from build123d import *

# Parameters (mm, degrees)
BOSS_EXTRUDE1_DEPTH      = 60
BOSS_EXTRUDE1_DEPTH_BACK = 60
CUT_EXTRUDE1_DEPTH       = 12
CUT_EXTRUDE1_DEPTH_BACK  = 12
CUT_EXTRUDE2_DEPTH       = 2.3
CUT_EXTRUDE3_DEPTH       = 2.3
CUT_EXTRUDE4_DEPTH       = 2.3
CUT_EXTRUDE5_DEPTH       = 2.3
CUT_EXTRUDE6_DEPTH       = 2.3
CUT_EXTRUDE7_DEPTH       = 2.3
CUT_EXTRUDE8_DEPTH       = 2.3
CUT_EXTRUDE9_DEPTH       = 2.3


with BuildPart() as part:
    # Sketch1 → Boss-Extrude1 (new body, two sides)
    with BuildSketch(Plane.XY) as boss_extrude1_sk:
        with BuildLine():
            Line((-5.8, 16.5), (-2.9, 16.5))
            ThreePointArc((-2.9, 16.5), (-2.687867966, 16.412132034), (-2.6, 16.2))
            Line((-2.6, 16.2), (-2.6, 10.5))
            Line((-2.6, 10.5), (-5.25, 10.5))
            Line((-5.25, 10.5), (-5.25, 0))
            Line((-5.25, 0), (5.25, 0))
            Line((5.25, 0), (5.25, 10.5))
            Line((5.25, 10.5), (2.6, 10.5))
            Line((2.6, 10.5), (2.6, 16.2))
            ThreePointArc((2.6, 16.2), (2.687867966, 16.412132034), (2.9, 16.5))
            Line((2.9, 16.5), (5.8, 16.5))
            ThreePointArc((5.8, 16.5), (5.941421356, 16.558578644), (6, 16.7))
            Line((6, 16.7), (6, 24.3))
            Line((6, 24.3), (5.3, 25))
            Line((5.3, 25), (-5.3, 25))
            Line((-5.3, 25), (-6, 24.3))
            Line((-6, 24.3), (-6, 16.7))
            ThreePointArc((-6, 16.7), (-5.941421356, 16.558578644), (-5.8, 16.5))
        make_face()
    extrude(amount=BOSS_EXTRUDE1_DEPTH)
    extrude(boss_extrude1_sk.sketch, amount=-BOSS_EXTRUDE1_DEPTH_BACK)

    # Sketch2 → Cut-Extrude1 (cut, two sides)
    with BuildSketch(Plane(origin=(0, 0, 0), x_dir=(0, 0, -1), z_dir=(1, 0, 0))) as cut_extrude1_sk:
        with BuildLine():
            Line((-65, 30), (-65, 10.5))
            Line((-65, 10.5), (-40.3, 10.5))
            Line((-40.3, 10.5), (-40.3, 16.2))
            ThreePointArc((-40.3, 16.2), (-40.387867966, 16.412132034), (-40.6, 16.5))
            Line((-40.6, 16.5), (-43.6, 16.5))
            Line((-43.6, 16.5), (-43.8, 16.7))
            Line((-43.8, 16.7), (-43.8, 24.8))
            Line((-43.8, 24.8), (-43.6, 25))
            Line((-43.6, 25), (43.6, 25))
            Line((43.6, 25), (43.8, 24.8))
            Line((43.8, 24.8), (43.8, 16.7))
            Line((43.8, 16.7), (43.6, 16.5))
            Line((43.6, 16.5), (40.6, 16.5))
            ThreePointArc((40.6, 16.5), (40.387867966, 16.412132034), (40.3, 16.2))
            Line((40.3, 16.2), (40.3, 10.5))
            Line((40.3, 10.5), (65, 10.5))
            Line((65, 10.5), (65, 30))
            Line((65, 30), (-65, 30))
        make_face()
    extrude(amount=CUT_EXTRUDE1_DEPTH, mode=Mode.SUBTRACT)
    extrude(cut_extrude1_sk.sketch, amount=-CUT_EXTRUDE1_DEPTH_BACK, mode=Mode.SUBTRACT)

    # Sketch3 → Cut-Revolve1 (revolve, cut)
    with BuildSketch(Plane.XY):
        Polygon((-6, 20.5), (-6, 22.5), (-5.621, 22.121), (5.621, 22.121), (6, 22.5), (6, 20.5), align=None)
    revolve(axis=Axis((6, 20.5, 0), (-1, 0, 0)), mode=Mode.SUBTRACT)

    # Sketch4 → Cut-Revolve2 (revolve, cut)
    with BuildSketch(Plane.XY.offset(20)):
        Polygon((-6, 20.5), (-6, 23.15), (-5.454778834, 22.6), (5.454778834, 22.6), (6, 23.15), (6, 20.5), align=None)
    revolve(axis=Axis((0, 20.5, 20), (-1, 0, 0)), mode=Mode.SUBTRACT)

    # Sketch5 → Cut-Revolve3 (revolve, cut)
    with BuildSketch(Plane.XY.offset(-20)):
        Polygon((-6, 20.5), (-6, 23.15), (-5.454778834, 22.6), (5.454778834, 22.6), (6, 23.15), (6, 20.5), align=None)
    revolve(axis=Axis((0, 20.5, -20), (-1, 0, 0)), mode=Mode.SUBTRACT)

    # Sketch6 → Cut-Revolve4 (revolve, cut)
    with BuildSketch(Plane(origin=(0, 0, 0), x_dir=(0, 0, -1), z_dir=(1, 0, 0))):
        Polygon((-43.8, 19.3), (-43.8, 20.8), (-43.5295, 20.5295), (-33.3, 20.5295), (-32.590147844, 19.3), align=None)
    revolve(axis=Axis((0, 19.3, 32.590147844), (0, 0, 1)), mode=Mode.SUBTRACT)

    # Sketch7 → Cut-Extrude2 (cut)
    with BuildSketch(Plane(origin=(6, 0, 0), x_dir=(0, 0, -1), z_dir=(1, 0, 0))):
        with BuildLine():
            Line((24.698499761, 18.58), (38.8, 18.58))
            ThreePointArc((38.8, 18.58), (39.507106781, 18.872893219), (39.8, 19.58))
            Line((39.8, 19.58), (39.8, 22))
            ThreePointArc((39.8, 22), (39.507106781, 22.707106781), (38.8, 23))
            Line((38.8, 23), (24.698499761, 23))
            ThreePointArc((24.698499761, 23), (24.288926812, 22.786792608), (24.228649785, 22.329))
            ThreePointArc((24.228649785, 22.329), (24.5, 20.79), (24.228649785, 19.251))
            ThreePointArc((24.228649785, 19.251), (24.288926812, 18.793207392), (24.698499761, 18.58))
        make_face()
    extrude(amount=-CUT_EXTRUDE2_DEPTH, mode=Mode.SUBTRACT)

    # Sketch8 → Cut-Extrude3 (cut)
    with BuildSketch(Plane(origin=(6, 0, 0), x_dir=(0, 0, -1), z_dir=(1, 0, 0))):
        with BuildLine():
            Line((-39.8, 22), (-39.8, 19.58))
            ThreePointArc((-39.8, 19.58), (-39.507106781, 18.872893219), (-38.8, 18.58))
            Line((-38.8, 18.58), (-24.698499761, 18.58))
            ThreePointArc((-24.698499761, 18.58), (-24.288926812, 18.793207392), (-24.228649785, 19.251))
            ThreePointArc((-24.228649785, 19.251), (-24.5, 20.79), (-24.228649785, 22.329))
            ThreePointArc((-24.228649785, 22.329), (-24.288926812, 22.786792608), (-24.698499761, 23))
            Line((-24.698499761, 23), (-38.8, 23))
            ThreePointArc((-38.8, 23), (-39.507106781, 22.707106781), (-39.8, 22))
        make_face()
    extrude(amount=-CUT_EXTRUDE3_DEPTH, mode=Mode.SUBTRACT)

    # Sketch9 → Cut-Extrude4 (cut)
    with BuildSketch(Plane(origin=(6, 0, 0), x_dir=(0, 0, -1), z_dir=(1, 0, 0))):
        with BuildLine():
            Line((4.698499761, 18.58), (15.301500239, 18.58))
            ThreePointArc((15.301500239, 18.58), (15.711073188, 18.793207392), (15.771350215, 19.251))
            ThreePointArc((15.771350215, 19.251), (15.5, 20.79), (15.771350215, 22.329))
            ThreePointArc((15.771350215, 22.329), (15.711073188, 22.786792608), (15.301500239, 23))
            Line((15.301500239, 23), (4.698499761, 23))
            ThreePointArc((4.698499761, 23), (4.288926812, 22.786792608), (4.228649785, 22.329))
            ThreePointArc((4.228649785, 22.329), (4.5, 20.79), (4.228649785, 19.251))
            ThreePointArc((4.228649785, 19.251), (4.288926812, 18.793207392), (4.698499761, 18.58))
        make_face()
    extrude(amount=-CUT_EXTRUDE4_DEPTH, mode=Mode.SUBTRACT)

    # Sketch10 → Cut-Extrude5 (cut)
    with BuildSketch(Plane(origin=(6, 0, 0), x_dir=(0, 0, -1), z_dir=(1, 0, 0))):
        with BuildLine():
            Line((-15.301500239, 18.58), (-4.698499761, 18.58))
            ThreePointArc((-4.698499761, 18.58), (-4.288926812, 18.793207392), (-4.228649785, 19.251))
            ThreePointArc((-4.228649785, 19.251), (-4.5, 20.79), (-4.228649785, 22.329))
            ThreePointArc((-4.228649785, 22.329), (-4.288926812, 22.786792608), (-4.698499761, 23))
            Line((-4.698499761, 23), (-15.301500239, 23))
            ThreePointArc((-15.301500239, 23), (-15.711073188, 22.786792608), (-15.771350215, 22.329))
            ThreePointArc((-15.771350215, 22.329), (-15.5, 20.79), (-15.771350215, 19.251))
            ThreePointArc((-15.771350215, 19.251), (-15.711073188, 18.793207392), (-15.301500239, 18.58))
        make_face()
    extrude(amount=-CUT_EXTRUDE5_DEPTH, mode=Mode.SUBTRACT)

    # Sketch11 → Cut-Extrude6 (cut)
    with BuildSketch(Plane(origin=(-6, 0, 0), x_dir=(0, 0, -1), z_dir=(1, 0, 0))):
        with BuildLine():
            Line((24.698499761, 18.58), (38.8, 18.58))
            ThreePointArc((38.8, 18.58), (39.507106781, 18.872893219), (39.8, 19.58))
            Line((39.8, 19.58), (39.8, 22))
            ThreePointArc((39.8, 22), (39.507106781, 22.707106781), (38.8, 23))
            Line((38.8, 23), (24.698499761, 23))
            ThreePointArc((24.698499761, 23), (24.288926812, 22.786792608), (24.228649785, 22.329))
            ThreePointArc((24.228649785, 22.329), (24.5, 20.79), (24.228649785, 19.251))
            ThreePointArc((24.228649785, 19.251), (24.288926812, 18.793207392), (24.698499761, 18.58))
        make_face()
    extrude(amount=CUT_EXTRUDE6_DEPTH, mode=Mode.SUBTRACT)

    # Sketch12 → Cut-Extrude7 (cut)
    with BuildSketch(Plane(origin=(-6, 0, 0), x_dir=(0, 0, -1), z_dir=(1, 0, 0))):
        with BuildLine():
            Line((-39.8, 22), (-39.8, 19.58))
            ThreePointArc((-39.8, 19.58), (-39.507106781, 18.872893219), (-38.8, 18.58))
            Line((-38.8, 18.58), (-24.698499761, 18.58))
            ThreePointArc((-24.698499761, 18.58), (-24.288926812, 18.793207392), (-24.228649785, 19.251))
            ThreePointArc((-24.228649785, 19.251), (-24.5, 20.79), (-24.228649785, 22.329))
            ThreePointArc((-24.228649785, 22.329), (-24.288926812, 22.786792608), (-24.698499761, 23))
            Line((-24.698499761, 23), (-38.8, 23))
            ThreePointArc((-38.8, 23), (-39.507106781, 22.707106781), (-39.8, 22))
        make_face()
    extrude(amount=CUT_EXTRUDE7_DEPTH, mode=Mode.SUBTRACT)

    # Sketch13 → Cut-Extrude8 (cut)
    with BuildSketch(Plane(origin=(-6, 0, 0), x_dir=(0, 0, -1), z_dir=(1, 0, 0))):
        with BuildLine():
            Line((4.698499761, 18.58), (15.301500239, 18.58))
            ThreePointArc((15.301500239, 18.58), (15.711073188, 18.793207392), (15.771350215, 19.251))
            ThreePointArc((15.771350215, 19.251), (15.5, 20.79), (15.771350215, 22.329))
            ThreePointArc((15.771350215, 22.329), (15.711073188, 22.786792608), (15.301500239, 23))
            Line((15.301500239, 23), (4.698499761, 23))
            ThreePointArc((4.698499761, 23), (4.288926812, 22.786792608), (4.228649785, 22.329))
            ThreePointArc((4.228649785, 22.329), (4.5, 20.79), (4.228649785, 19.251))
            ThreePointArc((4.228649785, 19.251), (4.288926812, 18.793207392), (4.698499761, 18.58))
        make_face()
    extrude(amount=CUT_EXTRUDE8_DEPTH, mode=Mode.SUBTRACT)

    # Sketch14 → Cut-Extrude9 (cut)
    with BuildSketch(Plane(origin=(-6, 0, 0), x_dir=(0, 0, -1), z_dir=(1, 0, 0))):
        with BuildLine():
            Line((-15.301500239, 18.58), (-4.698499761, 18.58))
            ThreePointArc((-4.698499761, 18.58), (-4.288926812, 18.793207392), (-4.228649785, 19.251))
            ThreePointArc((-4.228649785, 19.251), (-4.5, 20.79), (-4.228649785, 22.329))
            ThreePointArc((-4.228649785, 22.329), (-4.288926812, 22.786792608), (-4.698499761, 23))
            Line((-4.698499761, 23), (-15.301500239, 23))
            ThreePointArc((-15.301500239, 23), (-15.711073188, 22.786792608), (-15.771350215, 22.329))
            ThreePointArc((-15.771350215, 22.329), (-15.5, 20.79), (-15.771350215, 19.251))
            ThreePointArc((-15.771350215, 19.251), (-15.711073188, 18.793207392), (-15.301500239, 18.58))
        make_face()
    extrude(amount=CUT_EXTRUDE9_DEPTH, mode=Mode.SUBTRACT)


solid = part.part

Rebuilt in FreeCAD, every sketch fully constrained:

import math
import FreeCAD as App
import Part
import Sketcher
from FreeCAD import Vector
Q = App.Units.Quantity


def add_polygon(sketch, points):
    """Adds a closed chain of lines whose ends are joined by coincident constraints."""
    first, n = sketch.GeometryCount, len(points)
    for a, b in zip(points, points[1:] + points[:1]):
        sketch.addGeometry(Part.LineSegment(App.Vector(*a, 0), App.Vector(*b, 0)), False)
    for i in range(n):
        sketch.addConstraint(Sketcher.Constraint("Coincident", first + i, 2, first + (i + 1) % n, 1))

doc = App.newDocument("Part")
body = doc.addObject("PartDesign::Body", "Body")

sketch1 = body.newObject("Sketcher::SketchObject", "Sketch")
sketch1.AttachmentSupport = (doc.getObject("XY_Plane"), [""])
sketch1.MapMode = "FlatFace"
sketch1.addGeometry(Part.LineSegment(Vector(-5.8, 16.5, 0), Vector(-2.9, 16.5, 0)), False)
sketch1.addGeometry(Part.ArcOfCircle(Part.Circle(Vector(-2.9, 16.2, 0), Vector(0, 0, 1), 0.3), math.radians(0), math.radians(90)), False)
sketch1.addGeometry(Part.LineSegment(Vector(-2.6, 16.2, 0), Vector(-2.6, 10.5, 0)), False)
sketch1.addGeometry(Part.LineSegment(Vector(-2.6, 10.5, 0), Vector(-5.25, 10.5, 0)), False)
sketch1.addGeometry(Part.LineSegment(Vector(-5.25, 10.5, 0), Vector(-5.25, 0, 0)), False)
sketch1.addGeometry(Part.LineSegment(Vector(-5.25, 0, 0), Vector(5.25, 0, 0)), False)
sketch1.addGeometry(Part.LineSegment(Vector(5.25, 0, 0), Vector(5.25, 10.5, 0)), False)
sketch1.addGeometry(Part.LineSegment(Vector(5.25, 10.5, 0), Vector(2.6, 10.5, 0)), False)
sketch1.addGeometry(Part.LineSegment(Vector(2.6, 10.5, 0), Vector(2.6, 16.2, 0)), False)
sketch1.addGeometry(Part.ArcOfCircle(Part.Circle(Vector(2.9, 16.2, 0), Vector(0, 0, 1), 0.3), math.radians(90), math.radians(180)), False)
sketch1.addGeometry(Part.LineSegment(Vector(2.9, 16.5, 0), Vector(5.8, 16.5, 0)), False)
sketch1.addGeometry(Part.ArcOfCircle(Part.Circle(Vector(5.8, 16.7, 0), Vector(0, 0, 1), 0.2), math.radians(-90), math.radians(0)), False)
sketch1.addGeometry(Part.LineSegment(Vector(6, 16.7, 0), Vector(6, 24.3, 0)), False)
sketch1.addGeometry(Part.LineSegment(Vector(6, 24.3, 0), Vector(5.3, 25, 0)), False)
sketch1.addGeometry(Part.LineSegment(Vector(5.3, 25, 0), Vector(-5.3, 25, 0)), False)
sketch1.addGeometry(Part.LineSegment(Vector(-5.3, 25, 0), Vector(-6, 24.3, 0)), False)
sketch1.addGeometry(Part.LineSegment(Vector(-6, 24.3, 0), Vector(-6, 16.7, 0)), False)
sketch1.addGeometry(Part.ArcOfCircle(Part.Circle(Vector(-5.8, 16.7, 0), Vector(0, 0, 1), 0.2), math.radians(-180), math.radians(-90)), False)
sketch1.addConstraint(Sketcher.Constraint("Tangent", 0, 2, 1, 2))
sketch1.addConstraint(Sketcher.Constraint("Tangent", 1, 1, 2, 1))
sketch1.addConstraint(Sketcher.Constraint("Coincident", 2, 2, 3, 1))
sketch1.addConstraint(Sketcher.Constraint("Coincident", 3, 2, 4, 1))
sketch1.addConstraint(Sketcher.Constraint("Coincident", 4, 2, 5, 1))
sketch1.addConstraint(Sketcher.Constraint("Coincident", 5, 2, 6, 1))
sketch1.addConstraint(Sketcher.Constraint("Coincident", 6, 2, 7, 1))
sketch1.addConstraint(Sketcher.Constraint("Coincident", 7, 2, 8, 1))
sketch1.addConstraint(Sketcher.Constraint("Tangent", 8, 2, 9, 2))
sketch1.addConstraint(Sketcher.Constraint("Tangent", 9, 1, 10, 1))
sketch1.addConstraint(Sketcher.Constraint("Tangent", 10, 2, 11, 1))
sketch1.addConstraint(Sketcher.Constraint("Tangent", 11, 2, 12, 1))
sketch1.addConstraint(Sketcher.Constraint("Coincident", 12, 2, 13, 1))
sketch1.addConstraint(Sketcher.Constraint("Coincident", 13, 2, 14, 1))
sketch1.addConstraint(Sketcher.Constraint("Coincident", 14, 2, 15, 1))
sketch1.addConstraint(Sketcher.Constraint("Coincident", 15, 2, 16, 1))
sketch1.addConstraint(Sketcher.Constraint("Tangent", 16, 2, 17, 1))
sketch1.addConstraint(Sketcher.Constraint("Tangent", 17, 2, 0, 1))
sketch1.addConstraint(Sketcher.Constraint("Horizontal", 0))
sketch1.addConstraint(Sketcher.Constraint("Vertical", 2))
sketch1.addConstraint(Sketcher.Constraint("Horizontal", 3))
sketch1.addConstraint(Sketcher.Constraint("Vertical", 4))
sketch1.addConstraint(Sketcher.Constraint("Horizontal", 5))
sketch1.addConstraint(Sketcher.Constraint("Vertical", 6))
sketch1.addConstraint(Sketcher.Constraint("Horizontal", 7))
sketch1.addConstraint(Sketcher.Constraint("Vertical", 8))
sketch1.addConstraint(Sketcher.Constraint("Horizontal", 10))
sketch1.addConstraint(Sketcher.Constraint("Vertical", 12))
sketch1.addConstraint(Sketcher.Constraint("Horizontal", 14))
sketch1.addConstraint(Sketcher.Constraint("Vertical", 16))
sketch1.addConstraint(Sketcher.Constraint("Equal", 1, 9))
sketch1.addConstraint(Sketcher.Constraint("Equal", 11, 17))
sketch1.addConstraint(Sketcher.Constraint("Symmetric", 4, 2, 5, 2, -1, 1))
sketch1.addConstraint(Sketcher.Constraint("Symmetric", 1, 3, 9, 3, -2))
sketch1.addConstraint(Sketcher.Constraint("Symmetric", 12, 2, 15, 2, -2))
sketch1.addConstraint(Sketcher.Constraint("Perpendicular", 13, 15))
sketch1.addConstraint(Sketcher.Constraint("Horizontal", 3, 2, 6, 2))
sketch1.addConstraint(Sketcher.Constraint("Equal", 5, 4))
sketch1.addConstraint(Sketcher.Constraint("Equal", 13, 15))
sketch1.addConstraint(Sketcher.Constraint("Radius", 1, 0.3))
sketch1.addConstraint(Sketcher.Constraint("Radius", 11, 0.2))
sketch1.addConstraint(Sketcher.Constraint("DistanceX", 0, 1, 0, 2, 2.9))
sketch1.addConstraint(Sketcher.Constraint("DistanceX", 5, 1, 5, 2, 10.5))
sketch1.addConstraint(Sketcher.Constraint("DistanceX", 14, 2, 14, 1, 10.6))
sketch1.addConstraint(Sketcher.Constraint("DistanceY", 2, 2, 2, 1, 5.7))
sketch1.addConstraint(Sketcher.Constraint("DistanceY", 12, 1, 12, 2, 7.6))
sketch1.addConstraint(Sketcher.Constraint("DistanceX", -1, 1, 11, 2, 6.0))
pad1 = body.newObject("PartDesign::Pad", "Pad")
pad1.Profile = sketch1
pad1.Type = "TwoLengths"
pad1.Length = 60
pad1.Length2 = 60

sketch2 = body.newObject("Sketcher::SketchObject", "Sketch001")
sketch2.AttachmentSupport = (doc.getObject("YZ_Plane"), [""])
sketch2.MapMode = "FlatFace"
sketch2.addGeometry(Part.LineSegment(Vector(30, 65, 0), Vector(10.5, 65, 0)), False)
sketch2.addGeometry(Part.LineSegment(Vector(10.5, 65, 0), Vector(10.5, 40.3, 0)), False)
sketch2.addGeometry(Part.LineSegment(Vector(10.5, 40.3, 0), Vector(16.2, 40.3, 0)), False)
sketch2.addGeometry(Part.ArcOfCircle(Part.Circle(Vector(16.2, 40.6, 0), Vector(0, 0, 1), 0.3), math.radians(-90), math.radians(0)), False)
sketch2.addGeometry(Part.LineSegment(Vector(16.5, 40.6, 0), Vector(16.5, 43.6, 0)), False)
sketch2.addGeometry(Part.LineSegment(Vector(16.5, 43.6, 0), Vector(16.7, 43.8, 0)), False)
sketch2.addGeometry(Part.LineSegment(Vector(16.7, 43.8, 0), Vector(24.8, 43.8, 0)), False)
sketch2.addGeometry(Part.LineSegment(Vector(24.8, 43.8, 0), Vector(25, 43.6, 0)), False)
sketch2.addGeometry(Part.LineSegment(Vector(25, 43.6, 0), Vector(25, -43.6, 0)), False)
sketch2.addGeometry(Part.LineSegment(Vector(25, -43.6, 0), Vector(24.8, -43.8, 0)), False)
sketch2.addGeometry(Part.LineSegment(Vector(24.8, -43.8, 0), Vector(16.7, -43.8, 0)), False)
sketch2.addGeometry(Part.LineSegment(Vector(16.7, -43.8, 0), Vector(16.5, -43.6, 0)), False)
sketch2.addGeometry(Part.LineSegment(Vector(16.5, -43.6, 0), Vector(16.5, -40.6, 0)), False)
sketch2.addGeometry(Part.ArcOfCircle(Part.Circle(Vector(16.2, -40.6, 0), Vector(0, 0, 1), 0.3), math.radians(0), math.radians(90)), False)
sketch2.addGeometry(Part.LineSegment(Vector(16.2, -40.3, 0), Vector(10.5, -40.3, 0)), False)
sketch2.addGeometry(Part.LineSegment(Vector(10.5, -40.3, 0), Vector(10.5, -65, 0)), False)
sketch2.addGeometry(Part.LineSegment(Vector(10.5, -65, 0), Vector(30, -65, 0)), False)
sketch2.addGeometry(Part.LineSegment(Vector(30, -65, 0), Vector(30, 65, 0)), False)
sketch2.addConstraint(Sketcher.Constraint("Coincident", 0, 2, 1, 1))
sketch2.addConstraint(Sketcher.Constraint("Coincident", 1, 2, 2, 1))
sketch2.addConstraint(Sketcher.Constraint("Tangent", 2, 2, 3, 1))
sketch2.addConstraint(Sketcher.Constraint("Tangent", 3, 2, 4, 1))
sketch2.addConstraint(Sketcher.Constraint("Coincident", 4, 2, 5, 1))
sketch2.addConstraint(Sketcher.Constraint("Coincident", 5, 2, 6, 1))
sketch2.addConstraint(Sketcher.Constraint("Coincident", 6, 2, 7, 1))
sketch2.addConstraint(Sketcher.Constraint("Coincident", 7, 2, 8, 1))
sketch2.addConstraint(Sketcher.Constraint("Coincident", 8, 2, 9, 1))
sketch2.addConstraint(Sketcher.Constraint("Coincident", 9, 2, 10, 1))
sketch2.addConstraint(Sketcher.Constraint("Coincident", 10, 2, 11, 1))
sketch2.addConstraint(Sketcher.Constraint("Coincident", 11, 2, 12, 1))
sketch2.addConstraint(Sketcher.Constraint("Tangent", 12, 2, 13, 1))
sketch2.addConstraint(Sketcher.Constraint("Tangent", 13, 2, 14, 1))
sketch2.addConstraint(Sketcher.Constraint("Coincident", 14, 2, 15, 1))
sketch2.addConstraint(Sketcher.Constraint("Coincident", 15, 2, 16, 1))
sketch2.addConstraint(Sketcher.Constraint("Coincident", 16, 2, 17, 1))
sketch2.addConstraint(Sketcher.Constraint("Coincident", 17, 2, 0, 1))
sketch2.addConstraint(Sketcher.Constraint("Horizontal", 0))
sketch2.addConstraint(Sketcher.Constraint("Vertical", 1))
sketch2.addConstraint(Sketcher.Constraint("Horizontal", 2))
sketch2.addConstraint(Sketcher.Constraint("Vertical", 4))
sketch2.addConstraint(Sketcher.Constraint("Horizontal", 6))
sketch2.addConstraint(Sketcher.Constraint("Vertical", 8))
sketch2.addConstraint(Sketcher.Constraint("Horizontal", 10))
sketch2.addConstraint(Sketcher.Constraint("Vertical", 12))
sketch2.addConstraint(Sketcher.Constraint("Horizontal", 14))
sketch2.addConstraint(Sketcher.Constraint("Vertical", 15))
sketch2.addConstraint(Sketcher.Constraint("Horizontal", 16))
sketch2.addConstraint(Sketcher.Constraint("Vertical", 17))
sketch2.addConstraint(Sketcher.Constraint("Equal", 3, 13))
sketch2.addConstraint(Sketcher.Constraint("Symmetric", 3, 3, 13, 3, -1))
sketch2.addConstraint(Sketcher.Constraint("Symmetric", 6, 2, 9, 2, -1))
sketch2.addConstraint(Sketcher.Constraint("Symmetric", 0, 2, 15, 2, -1))
sketch2.addConstraint(Sketcher.Constraint("Perpendicular", 5, 7))
sketch2.addConstraint(Sketcher.Constraint("Perpendicular", 7, 9))
sketch2.addConstraint(Sketcher.Constraint("Perpendicular", 9, 11))
sketch2.addConstraint(Sketcher.Constraint("Horizontal", 4, 2, 7, 2))
sketch2.addConstraint(Sketcher.Constraint("Horizontal", 8, 2, 11, 2))
sketch2.addConstraint(Sketcher.Constraint("Vertical", 5, 2, 10, 2))
sketch2.addConstraint(Sketcher.Constraint("Radius", 3, 0.3))
sketch2.addConstraint(Sketcher.Constraint("DistanceY", 4, 1, 4, 2, 3.0))
sketch2.addConstraint(Sketcher.Constraint("DistanceY", 17, 1, 17, 2, 130.0))
sketch2.addConstraint(Sketcher.Constraint("DistanceX", 0, 2, 0, 1, 19.5))
sketch2.addConstraint(Sketcher.Constraint("DistanceX", 2, 1, 2, 2, 5.7))
sketch2.addConstraint(Sketcher.Constraint("DistanceX", 6, 1, 6, 2, 8.1))
sketch2.addConstraint(Sketcher.Constraint("DistanceY", 1, 2, 1, 1, 24.7))
sketch2.addConstraint(Sketcher.Constraint("DistanceX", -1, 1, 7, 2, 25.0))
sketch2.addConstraint(Sketcher.Constraint("DistanceX", -1, 1, 16, 2, 30.0))
pocket1 = body.newObject("PartDesign::Pocket", "Pocket")
pocket1.Profile = sketch2
pocket1.Type = "ThroughAll"
pocket1.Midplane = True

sketch3 = body.newObject("Sketcher::SketchObject", "Sketch002")
sketch3.AttachmentSupport = (doc.getObject("XY_Plane"), [""])
sketch3.MapMode = "FlatFace"
add_polygon(sketch3, [(-6, 22.5), (-6, 20.5), (6, 20.5), (6, 22.5), (5.6, 22.1), (-5.6, 22.1)])
sketch3.addGeometry(Part.LineSegment(Vector(6, 20.5, 0), Vector(-6, 20.5, 0)), True)
sketch3.addConstraint(Sketcher.Constraint("Vertical", 0))
sketch3.addConstraint(Sketcher.Constraint("Horizontal", 1))
sketch3.addConstraint(Sketcher.Constraint("Vertical", 2))
sketch3.addConstraint(Sketcher.Constraint("Horizontal", 4))
sketch3.addConstraint(Sketcher.Constraint("Horizontal", 6))
sketch3.addConstraint(Sketcher.Constraint("Coincident", 6, 1, 1, 2))
sketch3.addConstraint(Sketcher.Constraint("Symmetric", 2, 2, 5, 2, -2))
sketch3.addConstraint(Sketcher.Constraint("Perpendicular", 3, 5))
sketch3.addConstraint(Sketcher.Constraint("Vertical", 5, 2, 6, 2))
sketch3.addConstraint(Sketcher.Constraint("Equal", 3, 5))
sketch3.addConstraint(Sketcher.Constraint("DistanceX", 1, 1, 1, 2, 12.0))
sketch3.addConstraint(Sketcher.Constraint("DistanceY", 0, 2, 0, 1, 2.0))
sketch3.addConstraint(Sketcher.Constraint("DistanceY", -1, 1, 0, 2, 20.5))
sketch3.addConstraint(Sketcher.Constraint("DistanceX", 4, 2, 4, 1, 11.242))
groove = body.newObject("PartDesign::Groove", "Groove")
groove.Profile = sketch3
groove.ReferenceAxis = (sketch3, ["Axis0"])
groove.Angle = 360

sketch4 = body.newObject("Sketcher::SketchObject", "Sketch003")
sketch4.AttachmentSupport = (doc.getObject("XY_Plane"), [""])
sketch4.MapMode = "FlatFace"
sketch4.AttachmentOffset = App.Placement(Vector(0, 0, 20), App.Rotation())
add_polygon(sketch4, [(-6, 23.1), (-6, 20.5), (6, 20.5), (6, 23.1), (5.5, 22.6), (-5.5, 22.6)])
sketch4.addGeometry(Part.LineSegment(Vector(6, 20.5, 0), Vector(-6, 20.5, 0)), True)
sketch4.addConstraint(Sketcher.Constraint("Vertical", 0))
sketch4.addConstraint(Sketcher.Constraint("Horizontal", 1))
sketch4.addConstraint(Sketcher.Constraint("Vertical", 2))
sketch4.addConstraint(Sketcher.Constraint("Horizontal", 4))
sketch4.addConstraint(Sketcher.Constraint("Horizontal", 6))
sketch4.addConstraint(Sketcher.Constraint("Coincident", 6, 1, 1, 2))
sketch4.addConstraint(Sketcher.Constraint("Symmetric", 2, 2, 5, 2, -2))
sketch4.addConstraint(Sketcher.Constraint("Vertical", 5, 2, 6, 2))
sketch4.addConstraint(Sketcher.Constraint("Equal", 3, 5))
sketch4.addConstraint(Sketcher.Constraint("DistanceX", 1, 1, 1, 2, 12.0))
sketch4.addConstraint(Sketcher.Constraint("DistanceY", 0, 2, 0, 1, 2.65))
sketch4.addConstraint(Sketcher.Constraint("DistanceY", -1, 1, 0, 2, 20.5))
sketch4.addConstraint(Sketcher.Constraint("DistanceY", -1, 1, 3, 2, 22.6))
sketch4.addConstraint(Sketcher.Constraint("Angle", 3, Q("-134.75 deg")))
groove2 = body.newObject("PartDesign::Groove", "Groove001")
groove2.Profile = sketch4
groove2.ReferenceAxis = (sketch4, ["Axis0"])
groove2.Angle = 360

sketch5 = body.newObject("Sketcher::SketchObject", "Sketch004")
sketch5.AttachmentSupport = (doc.getObject("XY_Plane"), [""])
sketch5.MapMode = "FlatFace"
sketch5.AttachmentOffset = App.Placement(Vector(0, 0, -20), App.Rotation())
add_polygon(sketch5, [(-6, 23.1), (-6, 20.5), (6, 20.5), (6, 23.1), (5.5, 22.6), (-5.5, 22.6)])
sketch5.addGeometry(Part.LineSegment(Vector(6, 20.5, 0), Vector(-6, 20.5, 0)), True)
sketch5.addConstraint(Sketcher.Constraint("Vertical", 0))
sketch5.addConstraint(Sketcher.Constraint("Horizontal", 1))
sketch5.addConstraint(Sketcher.Constraint("Vertical", 2))
sketch5.addConstraint(Sketcher.Constraint("Horizontal", 4))
sketch5.addConstraint(Sketcher.Constraint("Horizontal", 6))
sketch5.addConstraint(Sketcher.Constraint("Coincident", 6, 1, 1, 2))
sketch5.addConstraint(Sketcher.Constraint("Symmetric", 2, 2, 5, 2, -2))
sketch5.addConstraint(Sketcher.Constraint("Vertical", 5, 2, 6, 2))
sketch5.addConstraint(Sketcher.Constraint("Equal", 3, 5))
sketch5.addConstraint(Sketcher.Constraint("DistanceX", 1, 1, 1, 2, 12.0))
sketch5.addConstraint(Sketcher.Constraint("DistanceY", 0, 2, 0, 1, 2.65))
sketch5.addConstraint(Sketcher.Constraint("DistanceY", -1, 1, 0, 2, 20.5))
sketch5.addConstraint(Sketcher.Constraint("DistanceY", -1, 1, 3, 2, 22.6))
sketch5.addConstraint(Sketcher.Constraint("Angle", 3, Q("-134.75 deg")))
groove3 = body.newObject("PartDesign::Groove", "Groove002")
groove3.Profile = sketch5
groove3.ReferenceAxis = (sketch5, ["Axis0"])
groove3.Angle = 360

sketch6 = body.newObject("Sketcher::SketchObject", "Sketch005")
sketch6.AttachmentSupport = (doc.getObject("YZ_Plane"), [""])
sketch6.MapMode = "FlatFace"
add_polygon(sketch6, [(20.8, 43.8), (19.3, 43.8), (19.3, 32.59), (20.53, 33.3), (20.53, 43.53)])
sketch6.addGeometry(Part.LineSegment(Vector(19.3, 32.59, 0), Vector(19.3, 43.8, 0)), True)
sketch6.addConstraint(Sketcher.Constraint("Horizontal", 0))
sketch6.addConstraint(Sketcher.Constraint("Vertical", 1))
sketch6.addConstraint(Sketcher.Constraint("Vertical", 3))
sketch6.addConstraint(Sketcher.Constraint("Vertical", 5))
sketch6.addConstraint(Sketcher.Constraint("Coincident", 5, 1, 1, 2))
sketch6.addConstraint(Sketcher.Constraint("Horizontal", 4, 2, 5, 2))
sketch6.addConstraint(Sketcher.Constraint("Angle", 2, Q("30 deg")))
sketch6.addConstraint(Sketcher.Constraint("Angle", 4, Q("45 deg")))
sketch6.addConstraint(Sketcher.Constraint("DistanceX", 0, 2, 0, 1, 1.5))
sketch6.addConstraint(Sketcher.Constraint("DistanceX", -1, 1, 0, 2, 19.3))
sketch6.addConstraint(Sketcher.Constraint("DistanceY", -1, 1, 0, 2, 43.8))
sketch6.addConstraint(Sketcher.Constraint("DistanceY", -1, 1, 2, 2, 33.3))
sketch6.addConstraint(Sketcher.Constraint("DistanceY", 3, 1, 3, 2, 10.2295))
groove4 = body.newObject("PartDesign::Groove", "Groove003")
groove4.Profile = sketch6
groove4.ReferenceAxis = (sketch6, ["Axis0"])
groove4.Angle = 360

sketch7 = body.newObject("Sketcher::SketchObject", "Sketch006")
sketch7.AttachmentSupport = (doc.getObject("YZ_Plane"), [""])
sketch7.MapMode = "FlatFace"
sketch7.AttachmentOffset = App.Placement(Vector(0, 0, 6), App.Rotation())
sketch7.addGeometry(Part.LineSegment(Vector(18.58, -24.7, 0), Vector(18.58, -38.8, 0)), False)
sketch7.addGeometry(Part.ArcOfCircle(Part.Circle(Vector(19.58, -38.8, 0), Vector(0, 0, 1), 1), math.radians(-180), math.radians(-90)), False)
sketch7.addGeometry(Part.LineSegment(Vector(19.58, -39.8, 0), Vector(22, -39.8, 0)), False)
sketch7.addGeometry(Part.ArcOfCircle(Part.Circle(Vector(22, -38.8, 0), Vector(0, 0, 1), 1), math.radians(-90), math.radians(0)), False)
sketch7.addGeometry(Part.LineSegment(Vector(23, -38.8, 0), Vector(23, -24.7, 0)), False)
sketch7.addGeometry(Part.ArcOfCircle(Part.Circle(Vector(22.5, -24.7, 0), Vector(0, 0, 1), 0.5), math.radians(0), math.radians(110)), False)
sketch7.addGeometry(Part.ArcOfCircle(Part.Circle(Vector(20.79, -20, 0), Vector(0, 0, 1), 4.5), math.radians(-110), math.radians(-70)), False)
sketch7.addGeometry(Part.ArcOfCircle(Part.Circle(Vector(19.08, -24.7, 0), Vector(0, 0, 1), 0.5), math.radians(70), math.radians(180)), False)
sketch7.addConstraint(Sketcher.Constraint("Tangent", 0, 2, 1, 1))
sketch7.addConstraint(Sketcher.Constraint("Tangent", 1, 2, 2, 1))
sketch7.addConstraint(Sketcher.Constraint("Tangent", 2, 2, 3, 1))
sketch7.addConstraint(Sketcher.Constraint("Tangent", 3, 2, 4, 1))
sketch7.addConstraint(Sketcher.Constraint("Tangent", 4, 2, 5, 1))
sketch7.addConstraint(Sketcher.Constraint("Tangent", 5, 2, 6, 2))
sketch7.addConstraint(Sketcher.Constraint("Tangent", 6, 1, 7, 1))
sketch7.addConstraint(Sketcher.Constraint("Tangent", 7, 2, 0, 1))
sketch7.addConstraint(Sketcher.Constraint("Vertical", 0))
sketch7.addConstraint(Sketcher.Constraint("Horizontal", 2))
sketch7.addConstraint(Sketcher.Constraint("Vertical", 4))
sketch7.addConstraint(Sketcher.Constraint("Equal", 1, 3))
sketch7.addConstraint(Sketcher.Constraint("Equal", 5, 7))
sketch7.addConstraint(Sketcher.Constraint("Horizontal", 5, 3, 7, 3))
sketch7.addConstraint(Sketcher.Constraint("Radius", 1, 1.0))
sketch7.addConstraint(Sketcher.Constraint("Radius", 5, 0.5))
sketch7.addConstraint(Sketcher.Constraint("Radius", 6, 4.5))
sketch7.addConstraint(Sketcher.Constraint("DistanceX", -1, 1, 3, 3, 22.0))
sketch7.addConstraint(Sketcher.Constraint("DistanceY", 6, 3, -1, 1, 20.0))
sketch7.addConstraint(Sketcher.Constraint("DistanceX", 2, 1, 2, 2, 2.42))
sketch7.addConstraint(Sketcher.Constraint("DistanceY", 1, 3, -1, 1, 38.8))
pocket2 = body.newObject("PartDesign::Pocket", "Pocket001")
pocket2.Profile = sketch7
pocket2.Length = 2.3

sketch8 = body.newObject("Sketcher::SketchObject", "Sketch007")
sketch8.AttachmentSupport = (doc.getObject("YZ_Plane"), [""])
sketch8.MapMode = "FlatFace"
sketch8.AttachmentOffset = App.Placement(Vector(0, 0, 6), App.Rotation())
sketch8.addGeometry(Part.LineSegment(Vector(22, 39.8, 0), Vector(19.58, 39.8, 0)), False)
sketch8.addGeometry(Part.ArcOfCircle(Part.Circle(Vector(19.58, 38.8, 0), Vector(0, 0, 1), 1), math.radians(90), math.radians(180)), False)
sketch8.addGeometry(Part.LineSegment(Vector(18.58, 38.8, 0), Vector(18.58, 24.7, 0)), False)
sketch8.addGeometry(Part.ArcOfCircle(Part.Circle(Vector(19.08, 24.7, 0), Vector(0, 0, 1), 0.5), math.radians(180), math.radians(290)), False)
sketch8.addGeometry(Part.ArcOfCircle(Part.Circle(Vector(20.79, 20, 0), Vector(0, 0, 1), 4.5), math.radians(70), math.radians(110)), False)
sketch8.addGeometry(Part.ArcOfCircle(Part.Circle(Vector(22.5, 24.7, 0), Vector(0, 0, 1), 0.5), math.radians(-110), math.radians(0)), False)
sketch8.addGeometry(Part.LineSegment(Vector(23, 24.7, 0), Vector(23, 38.8, 0)), False)
sketch8.addGeometry(Part.ArcOfCircle(Part.Circle(Vector(22, 38.8, 0), Vector(0, 0, 1), 1), math.radians(0), math.radians(90)), False)
sketch8.addConstraint(Sketcher.Constraint("Tangent", 0, 2, 1, 1))
sketch8.addConstraint(Sketcher.Constraint("Tangent", 1, 2, 2, 1))
sketch8.addConstraint(Sketcher.Constraint("Tangent", 2, 2, 3, 1))
sketch8.addConstraint(Sketcher.Constraint("Tangent", 3, 2, 4, 2))
sketch8.addConstraint(Sketcher.Constraint("Tangent", 4, 1, 5, 1))
sketch8.addConstraint(Sketcher.Constraint("Tangent", 5, 2, 6, 1))
sketch8.addConstraint(Sketcher.Constraint("Tangent", 6, 2, 7, 1))
sketch8.addConstraint(Sketcher.Constraint("Tangent", 7, 2, 0, 1))
sketch8.addConstraint(Sketcher.Constraint("Horizontal", 0))
sketch8.addConstraint(Sketcher.Constraint("Vertical", 2))
sketch8.addConstraint(Sketcher.Constraint("Vertical", 6))
sketch8.addConstraint(Sketcher.Constraint("Equal", 3, 5))
sketch8.addConstraint(Sketcher.Constraint("Equal", 1, 7))
sketch8.addConstraint(Sketcher.Constraint("Horizontal", 3, 3, 5, 3))
sketch8.addConstraint(Sketcher.Constraint("Radius", 1, 1.0))
sketch8.addConstraint(Sketcher.Constraint("Radius", 3, 0.5))
sketch8.addConstraint(Sketcher.Constraint("Radius", 4, 4.5))
sketch8.addConstraint(Sketcher.Constraint("DistanceY", -1, 1, 4, 3, 20.0))
sketch8.addConstraint(Sketcher.Constraint("DistanceX", -1, 1, 7, 3, 22.0))
sketch8.addConstraint(Sketcher.Constraint("DistanceX", 0, 2, 0, 1, 2.42))
sketch8.addConstraint(Sketcher.Constraint("DistanceY", -1, 1, 1, 3, 38.8))
pocket3 = body.newObject("PartDesign::Pocket", "Pocket002")
pocket3.Profile = sketch8
pocket3.Length = 2.3

sketch9 = body.newObject("Sketcher::SketchObject", "Sketch008")
sketch9.AttachmentSupport = (doc.getObject("YZ_Plane"), [""])
sketch9.MapMode = "FlatFace"
sketch9.AttachmentOffset = App.Placement(Vector(0, 0, 6), App.Rotation())
sketch9.addGeometry(Part.LineSegment(Vector(18.58, -4.7, 0), Vector(18.58, -15.3, 0)), False)
sketch9.addGeometry(Part.ArcOfCircle(Part.Circle(Vector(19.08, -15.3, 0), Vector(0, 0, 1), 0.5), math.radians(180), math.radians(290)), False)
sketch9.addGeometry(Part.ArcOfCircle(Part.Circle(Vector(20.79, -20, 0), Vector(0, 0, 1), 4.5), math.radians(70), math.radians(110)), False)
sketch9.addGeometry(Part.ArcOfCircle(Part.Circle(Vector(22.5, -15.3, 0), Vector(0, 0, 1), 0.5), math.radians(-110), math.radians(0)), False)
sketch9.addGeometry(Part.LineSegment(Vector(23, -15.3, 0), Vector(23, -4.7, 0)), False)
sketch9.addGeometry(Part.ArcOfCircle(Part.Circle(Vector(22.5, -4.7, 0), Vector(0, 0, 1), 0.5), math.radians(0), math.radians(110)), False)
sketch9.addGeometry(Part.ArcOfCircle(Part.Circle(Vector(20.79, 0, 0), Vector(0, 0, 1), 4.5), math.radians(-110), math.radians(-70)), False)
sketch9.addGeometry(Part.ArcOfCircle(Part.Circle(Vector(19.08, -4.7, 0), Vector(0, 0, 1), 0.5), math.radians(70), math.radians(180)), False)
sketch9.addConstraint(Sketcher.Constraint("Tangent", 0, 2, 1, 1))
sketch9.addConstraint(Sketcher.Constraint("Tangent", 1, 2, 2, 2))
sketch9.addConstraint(Sketcher.Constraint("Tangent", 2, 1, 3, 1))
sketch9.addConstraint(Sketcher.Constraint("Tangent", 3, 2, 4, 1))
sketch9.addConstraint(Sketcher.Constraint("Tangent", 4, 2, 5, 1))
sketch9.addConstraint(Sketcher.Constraint("Tangent", 5, 2, 6, 2))
sketch9.addConstraint(Sketcher.Constraint("Tangent", 6, 1, 7, 1))
sketch9.addConstraint(Sketcher.Constraint("Tangent", 7, 2, 0, 1))
sketch9.addConstraint(Sketcher.Constraint("Vertical", 0))
sketch9.addConstraint(Sketcher.Constraint("Vertical", 4))
sketch9.addConstraint(Sketcher.Constraint("Equal", 1, 3))
sketch9.addConstraint(Sketcher.Constraint("Equal", 3, 5))
sketch9.addConstraint(Sketcher.Constraint("Equal", 2, 6))
sketch9.addConstraint(Sketcher.Constraint("Equal", 5, 7))
sketch9.addConstraint(Sketcher.Constraint("PointOnObject", 6, 3, -1))
sketch9.addConstraint(Sketcher.Constraint("Horizontal", 1, 3, 3, 3))
sketch9.addConstraint(Sketcher.Constraint("Horizontal", 5, 3, 7, 3))
sketch9.addConstraint(Sketcher.Constraint("Radius", 1, 0.5))
sketch9.addConstraint(Sketcher.Constraint("Radius", 2, 4.5))
sketch9.addConstraint(Sketcher.Constraint("DistanceY", 2, 3, -1, 1, 20.0))
sketch9.addConstraint(Sketcher.Constraint("DistanceX", -1, 1, 3, 2, 23.0))
sketch9.addConstraint(Sketcher.Constraint("DistanceY", 0, 2, 0, 1, 10.603))
pocket4 = body.newObject("PartDesign::Pocket", "Pocket003")
pocket4.Profile = sketch9
pocket4.Length = 2.3

sketch10 = body.newObject("Sketcher::SketchObject", "Sketch009")
sketch10.AttachmentSupport = (doc.getObject("YZ_Plane"), [""])
sketch10.MapMode = "FlatFace"
sketch10.AttachmentOffset = App.Placement(Vector(0, 0, 6), App.Rotation())
sketch10.addGeometry(Part.LineSegment(Vector(18.58, 15.3, 0), Vector(18.58, 4.7, 0)), False)
sketch10.addGeometry(Part.ArcOfCircle(Part.Circle(Vector(19.08, 4.7, 0), Vector(0, 0, 1), 0.5), math.radians(180), math.radians(290)), False)
sketch10.addGeometry(Part.ArcOfCircle(Part.Circle(Vector(20.79, 0, 0), Vector(0, 0, 1), 4.5), math.radians(70), math.radians(110)), False)
sketch10.addGeometry(Part.ArcOfCircle(Part.Circle(Vector(22.5, 4.7, 0), Vector(0, 0, 1), 0.5), math.radians(-110), math.radians(0)), False)
sketch10.addGeometry(Part.LineSegment(Vector(23, 4.7, 0), Vector(23, 15.3, 0)), False)
sketch10.addGeometry(Part.ArcOfCircle(Part.Circle(Vector(22.5, 15.3, 0), Vector(0, 0, 1), 0.5), math.radians(0), math.radians(110)), False)
sketch10.addGeometry(Part.ArcOfCircle(Part.Circle(Vector(20.79, 20, 0), Vector(0, 0, 1), 4.5), math.radians(-110), math.radians(-70)), False)
sketch10.addGeometry(Part.ArcOfCircle(Part.Circle(Vector(19.08, 15.3, 0), Vector(0, 0, 1), 0.5), math.radians(70), math.radians(180)), False)
sketch10.addConstraint(Sketcher.Constraint("Tangent", 0, 2, 1, 1))
sketch10.addConstraint(Sketcher.Constraint("Tangent", 1, 2, 2, 2))
sketch10.addConstraint(Sketcher.Constraint("Tangent", 2, 1, 3, 1))
sketch10.addConstraint(Sketcher.Constraint("Tangent", 3, 2, 4, 1))
sketch10.addConstraint(Sketcher.Constraint("Tangent", 4, 2, 5, 1))
sketch10.addConstraint(Sketcher.Constraint("Tangent", 5, 2, 6, 2))
sketch10.addConstraint(Sketcher.Constraint("Tangent", 6, 1, 7, 1))
sketch10.addConstraint(Sketcher.Constraint("Tangent", 7, 2, 0, 1))
sketch10.addConstraint(Sketcher.Constraint("Vertical", 0))
sketch10.addConstraint(Sketcher.Constraint("Vertical", 4))
sketch10.addConstraint(Sketcher.Constraint("Equal", 1, 3))
sketch10.addConstraint(Sketcher.Constraint("Equal", 3, 5))
sketch10.addConstraint(Sketcher.Constraint("Equal", 2, 6))
sketch10.addConstraint(Sketcher.Constraint("Equal", 5, 7))
sketch10.addConstraint(Sketcher.Constraint("PointOnObject", 2, 3, -1))
sketch10.addConstraint(Sketcher.Constraint("Horizontal", 1, 3, 3, 3))
sketch10.addConstraint(Sketcher.Constraint("Horizontal", 5, 3, 7, 3))
sketch10.addConstraint(Sketcher.Constraint("Radius", 1, 0.5))
sketch10.addConstraint(Sketcher.Constraint("Radius", 2, 4.5))
sketch10.addConstraint(Sketcher.Constraint("DistanceY", -1, 1, 6, 3, 20.0))
sketch10.addConstraint(Sketcher.Constraint("DistanceX", -1, 1, 3, 2, 23.0))
sketch10.addConstraint(Sketcher.Constraint("DistanceY", 0, 2, 0, 1, 10.603))
pocket5 = body.newObject("PartDesign::Pocket", "Pocket004")
pocket5.Profile = sketch10
pocket5.Length = 2.3

sketch11 = body.newObject("Sketcher::SketchObject", "Sketch010")
sketch11.AttachmentSupport = (doc.getObject("YZ_Plane"), [""])
sketch11.MapMode = "FlatFace"
sketch11.AttachmentOffset = App.Placement(Vector(0, 0, -6), App.Rotation())
sketch11.addGeometry(Part.LineSegment(Vector(18.58, -24.7, 0), Vector(18.58, -38.8, 0)), False)
sketch11.addGeometry(Part.ArcOfCircle(Part.Circle(Vector(19.58, -38.8, 0), Vector(0, 0, 1), 1), math.radians(-180), math.radians(-90)), False)
sketch11.addGeometry(Part.LineSegment(Vector(19.58, -39.8, 0), Vector(22, -39.8, 0)), False)
sketch11.addGeometry(Part.ArcOfCircle(Part.Circle(Vector(22, -38.8, 0), Vector(0, 0, 1), 1), math.radians(-90), math.radians(0)), False)
sketch11.addGeometry(Part.LineSegment(Vector(23, -38.8, 0), Vector(23, -24.7, 0)), False)
sketch11.addGeometry(Part.ArcOfCircle(Part.Circle(Vector(22.5, -24.7, 0), Vector(0, 0, 1), 0.5), math.radians(0), math.radians(110)), False)
sketch11.addGeometry(Part.ArcOfCircle(Part.Circle(Vector(20.79, -20, 0), Vector(0, 0, 1), 4.5), math.radians(-110), math.radians(-70)), False)
sketch11.addGeometry(Part.ArcOfCircle(Part.Circle(Vector(19.08, -24.7, 0), Vector(0, 0, 1), 0.5), math.radians(70), math.radians(180)), False)
sketch11.addConstraint(Sketcher.Constraint("Tangent", 0, 2, 1, 1))
sketch11.addConstraint(Sketcher.Constraint("Tangent", 1, 2, 2, 1))
sketch11.addConstraint(Sketcher.Constraint("Tangent", 2, 2, 3, 1))
sketch11.addConstraint(Sketcher.Constraint("Tangent", 3, 2, 4, 1))
sketch11.addConstraint(Sketcher.Constraint("Tangent", 4, 2, 5, 1))
sketch11.addConstraint(Sketcher.Constraint("Tangent", 5, 2, 6, 2))
sketch11.addConstraint(Sketcher.Constraint("Tangent", 6, 1, 7, 1))
sketch11.addConstraint(Sketcher.Constraint("Tangent", 7, 2, 0, 1))
sketch11.addConstraint(Sketcher.Constraint("Vertical", 0))
sketch11.addConstraint(Sketcher.Constraint("Horizontal", 2))
sketch11.addConstraint(Sketcher.Constraint("Vertical", 4))
sketch11.addConstraint(Sketcher.Constraint("Equal", 1, 3))
sketch11.addConstraint(Sketcher.Constraint("Equal", 5, 7))
sketch11.addConstraint(Sketcher.Constraint("Horizontal", 5, 3, 7, 3))
sketch11.addConstraint(Sketcher.Constraint("Radius", 1, 1.0))
sketch11.addConstraint(Sketcher.Constraint("Radius", 5, 0.5))
sketch11.addConstraint(Sketcher.Constraint("Radius", 6, 4.5))
sketch11.addConstraint(Sketcher.Constraint("DistanceX", -1, 1, 3, 3, 22.0))
sketch11.addConstraint(Sketcher.Constraint("DistanceY", 6, 3, -1, 1, 20.0))
sketch11.addConstraint(Sketcher.Constraint("DistanceX", 2, 1, 2, 2, 2.42))
sketch11.addConstraint(Sketcher.Constraint("DistanceY", 1, 3, -1, 1, 38.8))
pocket6 = body.newObject("PartDesign::Pocket", "Pocket005")
pocket6.Profile = sketch11
pocket6.Length = 2.3
pocket6.Reversed = True

sketch12 = body.newObject("Sketcher::SketchObject", "Sketch011")
sketch12.AttachmentSupport = (doc.getObject("YZ_Plane"), [""])
sketch12.MapMode = "FlatFace"
sketch12.AttachmentOffset = App.Placement(Vector(0, 0, -6), App.Rotation())
sketch12.addGeometry(Part.LineSegment(Vector(22, 39.8, 0), Vector(19.58, 39.8, 0)), False)
sketch12.addGeometry(Part.ArcOfCircle(Part.Circle(Vector(19.58, 38.8, 0), Vector(0, 0, 1), 1), math.radians(90), math.radians(180)), False)
sketch12.addGeometry(Part.LineSegment(Vector(18.58, 38.8, 0), Vector(18.58, 24.7, 0)), False)
sketch12.addGeometry(Part.ArcOfCircle(Part.Circle(Vector(19.08, 24.7, 0), Vector(0, 0, 1), 0.5), math.radians(180), math.radians(290)), False)
sketch12.addGeometry(Part.ArcOfCircle(Part.Circle(Vector(20.79, 20, 0), Vector(0, 0, 1), 4.5), math.radians(70), math.radians(110)), False)
sketch12.addGeometry(Part.ArcOfCircle(Part.Circle(Vector(22.5, 24.7, 0), Vector(0, 0, 1), 0.5), math.radians(-110), math.radians(0)), False)
sketch12.addGeometry(Part.LineSegment(Vector(23, 24.7, 0), Vector(23, 38.8, 0)), False)
sketch12.addGeometry(Part.ArcOfCircle(Part.Circle(Vector(22, 38.8, 0), Vector(0, 0, 1), 1), math.radians(0), math.radians(90)), False)
sketch12.addConstraint(Sketcher.Constraint("Tangent", 0, 2, 1, 1))
sketch12.addConstraint(Sketcher.Constraint("Tangent", 1, 2, 2, 1))
sketch12.addConstraint(Sketcher.Constraint("Tangent", 2, 2, 3, 1))
sketch12.addConstraint(Sketcher.Constraint("Tangent", 3, 2, 4, 2))
sketch12.addConstraint(Sketcher.Constraint("Tangent", 4, 1, 5, 1))
sketch12.addConstraint(Sketcher.Constraint("Tangent", 5, 2, 6, 1))
sketch12.addConstraint(Sketcher.Constraint("Tangent", 6, 2, 7, 1))
sketch12.addConstraint(Sketcher.Constraint("Tangent", 7, 2, 0, 1))
sketch12.addConstraint(Sketcher.Constraint("Horizontal", 0))
sketch12.addConstraint(Sketcher.Constraint("Vertical", 2))
sketch12.addConstraint(Sketcher.Constraint("Vertical", 6))
sketch12.addConstraint(Sketcher.Constraint("Equal", 3, 5))
sketch12.addConstraint(Sketcher.Constraint("Equal", 1, 7))
sketch12.addConstraint(Sketcher.Constraint("Horizontal", 3, 3, 5, 3))
sketch12.addConstraint(Sketcher.Constraint("Radius", 1, 1.0))
sketch12.addConstraint(Sketcher.Constraint("Radius", 3, 0.5))
sketch12.addConstraint(Sketcher.Constraint("Radius", 4, 4.5))
sketch12.addConstraint(Sketcher.Constraint("DistanceY", -1, 1, 4, 3, 20.0))
sketch12.addConstraint(Sketcher.Constraint("DistanceX", -1, 1, 7, 3, 22.0))
sketch12.addConstraint(Sketcher.Constraint("DistanceX", 0, 2, 0, 1, 2.42))
sketch12.addConstraint(Sketcher.Constraint("DistanceY", -1, 1, 1, 3, 38.8))
pocket7 = body.newObject("PartDesign::Pocket", "Pocket006")
pocket7.Profile = sketch12
pocket7.Length = 2.3
pocket7.Reversed = True

sketch13 = body.newObject("Sketcher::SketchObject", "Sketch012")
sketch13.AttachmentSupport = (doc.getObject("YZ_Plane"), [""])
sketch13.MapMode = "FlatFace"
sketch13.AttachmentOffset = App.Placement(Vector(0, 0, -6), App.Rotation())
sketch13.addGeometry(Part.LineSegment(Vector(18.58, -4.7, 0), Vector(18.58, -15.3, 0)), False)
sketch13.addGeometry(Part.ArcOfCircle(Part.Circle(Vector(19.08, -15.3, 0), Vector(0, 0, 1), 0.5), math.radians(180), math.radians(290)), False)
sketch13.addGeometry(Part.ArcOfCircle(Part.Circle(Vector(20.79, -20, 0), Vector(0, 0, 1), 4.5), math.radians(70), math.radians(110)), False)
sketch13.addGeometry(Part.ArcOfCircle(Part.Circle(Vector(22.5, -15.3, 0), Vector(0, 0, 1), 0.5), math.radians(-110), math.radians(0)), False)
sketch13.addGeometry(Part.LineSegment(Vector(23, -15.3, 0), Vector(23, -4.7, 0)), False)
sketch13.addGeometry(Part.ArcOfCircle(Part.Circle(Vector(22.5, -4.7, 0), Vector(0, 0, 1), 0.5), math.radians(0), math.radians(110)), False)
sketch13.addGeometry(Part.ArcOfCircle(Part.Circle(Vector(20.79, 0, 0), Vector(0, 0, 1), 4.5), math.radians(-110), math.radians(-70)), False)
sketch13.addGeometry(Part.ArcOfCircle(Part.Circle(Vector(19.08, -4.7, 0), Vector(0, 0, 1), 0.5), math.radians(70), math.radians(180)), False)
sketch13.addConstraint(Sketcher.Constraint("Tangent", 0, 2, 1, 1))
sketch13.addConstraint(Sketcher.Constraint("Tangent", 1, 2, 2, 2))
sketch13.addConstraint(Sketcher.Constraint("Tangent", 2, 1, 3, 1))
sketch13.addConstraint(Sketcher.Constraint("Tangent", 3, 2, 4, 1))
sketch13.addConstraint(Sketcher.Constraint("Tangent", 4, 2, 5, 1))
sketch13.addConstraint(Sketcher.Constraint("Tangent", 5, 2, 6, 2))
sketch13.addConstraint(Sketcher.Constraint("Tangent", 6, 1, 7, 1))
sketch13.addConstraint(Sketcher.Constraint("Tangent", 7, 2, 0, 1))
sketch13.addConstraint(Sketcher.Constraint("Vertical", 0))
sketch13.addConstraint(Sketcher.Constraint("Vertical", 4))
sketch13.addConstraint(Sketcher.Constraint("Equal", 1, 3))
sketch13.addConstraint(Sketcher.Constraint("Equal", 3, 5))
sketch13.addConstraint(Sketcher.Constraint("Equal", 2, 6))
sketch13.addConstraint(Sketcher.Constraint("Equal", 5, 7))
sketch13.addConstraint(Sketcher.Constraint("PointOnObject", 6, 3, -1))
sketch13.addConstraint(Sketcher.Constraint("Horizontal", 1, 3, 3, 3))
sketch13.addConstraint(Sketcher.Constraint("Horizontal", 5, 3, 7, 3))
sketch13.addConstraint(Sketcher.Constraint("Radius", 1, 0.5))
sketch13.addConstraint(Sketcher.Constraint("Radius", 2, 4.5))
sketch13.addConstraint(Sketcher.Constraint("DistanceY", 2, 3, -1, 1, 20.0))
sketch13.addConstraint(Sketcher.Constraint("DistanceX", -1, 1, 3, 2, 23.0))
sketch13.addConstraint(Sketcher.Constraint("DistanceY", 0, 2, 0, 1, 10.603))
pocket8 = body.newObject("PartDesign::Pocket", "Pocket007")
pocket8.Profile = sketch13
pocket8.Length = 2.3
pocket8.Reversed = True

sketch14 = body.newObject("Sketcher::SketchObject", "Sketch013")
sketch14.AttachmentSupport = (doc.getObject("YZ_Plane"), [""])
sketch14.MapMode = "FlatFace"
sketch14.AttachmentOffset = App.Placement(Vector(0, 0, -6), App.Rotation())
sketch14.addGeometry(Part.LineSegment(Vector(18.58, 15.3, 0), Vector(18.58, 4.7, 0)), False)
sketch14.addGeometry(Part.ArcOfCircle(Part.Circle(Vector(19.08, 4.7, 0), Vector(0, 0, 1), 0.5), math.radians(180), math.radians(290)), False)
sketch14.addGeometry(Part.ArcOfCircle(Part.Circle(Vector(20.79, 0, 0), Vector(0, 0, 1), 4.5), math.radians(70), math.radians(110)), False)
sketch14.addGeometry(Part.ArcOfCircle(Part.Circle(Vector(22.5, 4.7, 0), Vector(0, 0, 1), 0.5), math.radians(-110), math.radians(0)), False)
sketch14.addGeometry(Part.LineSegment(Vector(23, 4.7, 0), Vector(23, 15.3, 0)), False)
sketch14.addGeometry(Part.ArcOfCircle(Part.Circle(Vector(22.5, 15.3, 0), Vector(0, 0, 1), 0.5), math.radians(0), math.radians(110)), False)
sketch14.addGeometry(Part.ArcOfCircle(Part.Circle(Vector(20.79, 20, 0), Vector(0, 0, 1), 4.5), math.radians(-110), math.radians(-70)), False)
sketch14.addGeometry(Part.ArcOfCircle(Part.Circle(Vector(19.08, 15.3, 0), Vector(0, 0, 1), 0.5), math.radians(70), math.radians(180)), False)
sketch14.addConstraint(Sketcher.Constraint("Tangent", 0, 2, 1, 1))
sketch14.addConstraint(Sketcher.Constraint("Tangent", 1, 2, 2, 2))
sketch14.addConstraint(Sketcher.Constraint("Tangent", 2, 1, 3, 1))
sketch14.addConstraint(Sketcher.Constraint("Tangent", 3, 2, 4, 1))
sketch14.addConstraint(Sketcher.Constraint("Tangent", 4, 2, 5, 1))
sketch14.addConstraint(Sketcher.Constraint("Tangent", 5, 2, 6, 2))
sketch14.addConstraint(Sketcher.Constraint("Tangent", 6, 1, 7, 1))
sketch14.addConstraint(Sketcher.Constraint("Tangent", 7, 2, 0, 1))
sketch14.addConstraint(Sketcher.Constraint("Vertical", 0))
sketch14.addConstraint(Sketcher.Constraint("Vertical", 4))
sketch14.addConstraint(Sketcher.Constraint("Equal", 1, 3))
sketch14.addConstraint(Sketcher.Constraint("Equal", 3, 5))
sketch14.addConstraint(Sketcher.Constraint("Equal", 2, 6))
sketch14.addConstraint(Sketcher.Constraint("Equal", 5, 7))
sketch14.addConstraint(Sketcher.Constraint("PointOnObject", 2, 3, -1))
sketch14.addConstraint(Sketcher.Constraint("Horizontal", 1, 3, 3, 3))
sketch14.addConstraint(Sketcher.Constraint("Horizontal", 5, 3, 7, 3))
sketch14.addConstraint(Sketcher.Constraint("Radius", 1, 0.5))
sketch14.addConstraint(Sketcher.Constraint("Radius", 2, 4.5))
sketch14.addConstraint(Sketcher.Constraint("DistanceY", -1, 1, 6, 3, 20.0))
sketch14.addConstraint(Sketcher.Constraint("DistanceX", -1, 1, 3, 2, 23.0))
sketch14.addConstraint(Sketcher.Constraint("DistanceY", 0, 2, 0, 1, 10.603))
pocket9 = body.newObject("PartDesign::Pocket", "Pocket008")
pocket9.Profile = sketch14
pocket9.Length = 2.3
pocket9.Reversed = True

doc.recompute()
